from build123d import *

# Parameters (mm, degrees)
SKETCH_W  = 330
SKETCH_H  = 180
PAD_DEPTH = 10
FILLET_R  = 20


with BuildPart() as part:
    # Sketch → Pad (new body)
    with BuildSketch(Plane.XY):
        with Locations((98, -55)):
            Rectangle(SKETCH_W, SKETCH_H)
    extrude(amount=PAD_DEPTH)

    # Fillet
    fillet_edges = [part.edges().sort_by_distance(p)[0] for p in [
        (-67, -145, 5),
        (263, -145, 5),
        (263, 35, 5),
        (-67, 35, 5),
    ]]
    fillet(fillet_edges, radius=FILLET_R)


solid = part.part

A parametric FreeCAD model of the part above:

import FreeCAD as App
import Part
import Sketcher
from FreeCAD import Vector


def edges_at(feature, points):
    """Names of the edges that pass closest to the given points."""
    edges = feature.Shape.Edges
    near = lambda p: min(range(len(edges)), key=lambda i: edges[i].distToShape(Part.Vertex(*p))[0])
    return sorted({f"Edge{near(p) + 1}" for p in points})


def add_polygon(sketch, points):
    """Adds a closed chain of lines whose ends are joined by coincident constraints."""
    first, n = sketch.GeometryCount, len(points)
    for a, b in zip(points, points[1:] + points[:1]):
        sketch.addGeometry(Part.LineSegment(App.Vector(*a, 0), App.Vector(*b, 0)), False)
    for i in range(n):
        sketch.addConstraint(Sketcher.Constraint("Coincident", first + i, 2, first + (i + 1) % n, 1))

doc = App.newDocument("Part")
body = doc.addObject("PartDesign::Body", "Body")

# Sketch on XY plane
sketch1 = doc.addObject("Sketcher::SketchObject", "Sketch")
body.addObject(sketch1)
sketch1.AttachmentSupport = (doc.XY_Plane, [""])
sketch1.MapMode = "FlatFace"
add_polygon(sketch1, [(-67, 35), (-67, -145), (263, -145), (263, 35)])  # lines 0-3
sketch1.addConstraint([
    Sketcher.Constraint("Vertical", 0),
    Sketcher.Constraint("Horizontal", 1),
    Sketcher.Constraint("Vertical", 2),
    Sketcher.Constraint("Horizontal", 3),
    Sketcher.Constraint("DistanceX", 1, 1, 1, 2, 330.0),
    Sketcher.Constraint("DistanceY", 0, 2, 0, 1, 180.0),
    Sketcher.Constraint("DistanceX", 0, 2, -1, 1, 67.0),
    Sketcher.Constraint("DistanceY", 0, 2, -1, 1, 145.0),
])
pad1 = doc.addObject("PartDesign::Pad", "Pad")
body.addObject(pad1)
pad1.Profile = sketch1
pad1.Length = 10
doc.recompute()

fillet = doc.addObject("PartDesign::Fillet", "Fillet")
body.addObject(fillet)
fillet.Base = (pad1, edges_at(pad1, [
    (-67, -145, 5),
    (263, -145, 5),
    (263, 35, 5),
    (-67, 35, 5),
]))
fillet.Radius = 20

doc.recompute()
